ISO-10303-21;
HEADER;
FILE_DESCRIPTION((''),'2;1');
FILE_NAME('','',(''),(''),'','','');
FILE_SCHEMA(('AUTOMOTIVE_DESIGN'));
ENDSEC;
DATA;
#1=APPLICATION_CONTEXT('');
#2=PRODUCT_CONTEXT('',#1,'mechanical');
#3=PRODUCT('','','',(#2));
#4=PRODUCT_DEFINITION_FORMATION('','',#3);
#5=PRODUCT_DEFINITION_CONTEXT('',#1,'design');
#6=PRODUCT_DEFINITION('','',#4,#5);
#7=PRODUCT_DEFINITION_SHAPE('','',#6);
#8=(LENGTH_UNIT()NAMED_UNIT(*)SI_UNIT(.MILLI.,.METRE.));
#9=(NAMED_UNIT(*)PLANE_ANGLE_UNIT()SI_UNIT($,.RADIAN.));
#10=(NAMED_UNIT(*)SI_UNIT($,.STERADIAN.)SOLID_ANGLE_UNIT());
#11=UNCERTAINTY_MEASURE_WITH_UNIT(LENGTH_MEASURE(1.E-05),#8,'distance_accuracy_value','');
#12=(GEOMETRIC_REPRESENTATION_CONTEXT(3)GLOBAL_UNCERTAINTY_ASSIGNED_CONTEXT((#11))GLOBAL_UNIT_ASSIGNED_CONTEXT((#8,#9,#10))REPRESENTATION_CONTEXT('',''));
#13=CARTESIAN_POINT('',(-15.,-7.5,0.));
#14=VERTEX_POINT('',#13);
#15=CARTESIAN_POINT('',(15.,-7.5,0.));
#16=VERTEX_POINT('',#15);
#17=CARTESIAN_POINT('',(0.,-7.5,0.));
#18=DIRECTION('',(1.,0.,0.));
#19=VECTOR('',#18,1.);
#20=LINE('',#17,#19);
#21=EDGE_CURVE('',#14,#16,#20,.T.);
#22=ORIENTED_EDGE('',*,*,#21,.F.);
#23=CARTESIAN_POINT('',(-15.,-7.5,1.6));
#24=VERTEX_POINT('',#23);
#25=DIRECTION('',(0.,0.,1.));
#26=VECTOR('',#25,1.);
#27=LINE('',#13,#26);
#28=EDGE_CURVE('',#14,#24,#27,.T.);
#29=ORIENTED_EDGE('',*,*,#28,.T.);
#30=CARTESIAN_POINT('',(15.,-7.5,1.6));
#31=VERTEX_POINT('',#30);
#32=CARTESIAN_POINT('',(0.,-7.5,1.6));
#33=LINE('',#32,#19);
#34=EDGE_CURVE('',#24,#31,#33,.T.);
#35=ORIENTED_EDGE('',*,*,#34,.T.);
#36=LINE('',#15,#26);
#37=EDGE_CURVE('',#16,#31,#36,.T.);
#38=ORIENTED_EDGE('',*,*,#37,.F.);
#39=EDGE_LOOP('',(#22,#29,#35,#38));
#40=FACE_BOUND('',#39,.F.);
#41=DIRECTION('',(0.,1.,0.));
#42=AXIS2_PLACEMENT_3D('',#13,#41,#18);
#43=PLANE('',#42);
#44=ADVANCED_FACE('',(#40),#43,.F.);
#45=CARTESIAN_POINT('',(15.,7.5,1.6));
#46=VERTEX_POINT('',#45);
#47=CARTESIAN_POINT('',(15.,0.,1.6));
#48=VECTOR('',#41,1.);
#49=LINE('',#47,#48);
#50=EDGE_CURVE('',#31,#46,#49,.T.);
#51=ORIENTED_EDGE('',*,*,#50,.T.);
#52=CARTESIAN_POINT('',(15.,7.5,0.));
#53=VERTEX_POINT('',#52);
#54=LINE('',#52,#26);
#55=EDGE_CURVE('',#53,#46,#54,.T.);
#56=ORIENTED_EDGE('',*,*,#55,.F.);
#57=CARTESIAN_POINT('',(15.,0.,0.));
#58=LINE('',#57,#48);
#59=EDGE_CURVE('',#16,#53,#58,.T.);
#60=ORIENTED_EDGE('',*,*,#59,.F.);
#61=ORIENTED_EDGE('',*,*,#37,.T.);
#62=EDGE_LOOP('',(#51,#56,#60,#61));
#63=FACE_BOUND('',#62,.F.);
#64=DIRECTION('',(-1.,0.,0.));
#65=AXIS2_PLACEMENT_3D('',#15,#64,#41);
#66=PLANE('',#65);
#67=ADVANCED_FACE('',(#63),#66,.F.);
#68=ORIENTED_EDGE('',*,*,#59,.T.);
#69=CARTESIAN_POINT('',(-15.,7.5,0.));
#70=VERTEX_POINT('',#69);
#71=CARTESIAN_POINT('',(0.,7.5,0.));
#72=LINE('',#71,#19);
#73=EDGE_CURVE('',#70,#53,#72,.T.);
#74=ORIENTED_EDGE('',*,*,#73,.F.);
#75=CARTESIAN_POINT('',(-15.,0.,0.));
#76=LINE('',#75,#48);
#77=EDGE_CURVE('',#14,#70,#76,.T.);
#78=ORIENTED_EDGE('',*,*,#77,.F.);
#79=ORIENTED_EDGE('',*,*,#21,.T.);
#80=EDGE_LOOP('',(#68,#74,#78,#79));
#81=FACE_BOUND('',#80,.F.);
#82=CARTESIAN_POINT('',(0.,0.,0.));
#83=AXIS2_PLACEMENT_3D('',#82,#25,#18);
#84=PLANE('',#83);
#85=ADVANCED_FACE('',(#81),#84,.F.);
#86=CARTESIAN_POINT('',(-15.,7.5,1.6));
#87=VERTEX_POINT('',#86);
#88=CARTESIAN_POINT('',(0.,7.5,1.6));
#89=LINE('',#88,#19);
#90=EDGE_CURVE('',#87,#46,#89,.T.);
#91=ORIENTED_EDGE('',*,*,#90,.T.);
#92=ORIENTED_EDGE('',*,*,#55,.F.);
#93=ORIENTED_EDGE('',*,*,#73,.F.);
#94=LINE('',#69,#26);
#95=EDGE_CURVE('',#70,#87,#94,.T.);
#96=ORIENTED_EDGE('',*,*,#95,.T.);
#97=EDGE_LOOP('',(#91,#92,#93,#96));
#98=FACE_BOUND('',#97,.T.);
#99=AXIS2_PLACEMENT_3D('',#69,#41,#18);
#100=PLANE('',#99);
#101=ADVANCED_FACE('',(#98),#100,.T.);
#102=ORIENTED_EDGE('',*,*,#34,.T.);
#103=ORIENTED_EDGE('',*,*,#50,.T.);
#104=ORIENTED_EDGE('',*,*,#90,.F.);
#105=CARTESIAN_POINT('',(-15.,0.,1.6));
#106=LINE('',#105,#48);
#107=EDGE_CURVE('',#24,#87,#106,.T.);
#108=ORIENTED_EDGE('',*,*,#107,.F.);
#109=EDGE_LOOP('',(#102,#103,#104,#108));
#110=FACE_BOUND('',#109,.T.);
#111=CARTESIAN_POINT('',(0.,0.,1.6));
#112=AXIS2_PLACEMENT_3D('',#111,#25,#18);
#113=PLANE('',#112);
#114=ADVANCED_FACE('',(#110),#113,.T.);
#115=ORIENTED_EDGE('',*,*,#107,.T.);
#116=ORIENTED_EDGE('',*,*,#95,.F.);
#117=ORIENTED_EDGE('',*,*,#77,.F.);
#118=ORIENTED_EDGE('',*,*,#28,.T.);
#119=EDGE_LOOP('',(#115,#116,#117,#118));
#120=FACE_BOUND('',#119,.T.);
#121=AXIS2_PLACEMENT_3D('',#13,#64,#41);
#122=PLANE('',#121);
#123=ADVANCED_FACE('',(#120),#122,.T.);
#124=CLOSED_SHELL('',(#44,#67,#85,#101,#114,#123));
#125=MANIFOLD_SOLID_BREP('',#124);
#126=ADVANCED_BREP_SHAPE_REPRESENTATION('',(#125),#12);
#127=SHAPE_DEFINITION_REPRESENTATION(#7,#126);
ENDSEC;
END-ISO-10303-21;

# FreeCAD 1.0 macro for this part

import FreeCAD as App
import Part
import Sketcher

V = App.Vector
Q = App.Units.Quantity

doc = App.newDocument("Part")
body = doc.addObject("PartDesign::Body", "Body")

# Sketch on XY plane
sketch1 = body.newObject("Sketcher::SketchObject", "Sketch")
sketch1.AttachmentSupport = (doc.getObject("XY_Plane"), [""])
sketch1.MapMode = "FlatFace"
sketch1.addGeometry([
    Part.LineSegment(V(-15, 7.5, 0), V(-15, -7.5, 0)),
    Part.LineSegment(V(-15, -7.5, 0), V(15, -7.5, 0)),
    Part.LineSegment(V(15, -7.5, 0), V(15, 7.5, 0)),
    Part.LineSegment(V(15, 7.5, 0), V(-15, 7.5, 0)),
], False)
sketch1.addConstraint([
    Sketcher.Constraint("Coincident", 0, 2, 1, 1),
    Sketcher.Constraint("Coincident", 1, 2, 2, 1),
    Sketcher.Constraint("Coincident", 2, 2, 3, 1),
    Sketcher.Constraint("Coincident", 3, 2, 0, 1),
    Sketcher.Constraint("Vertical", 0),
    Sketcher.Constraint("Horizontal", 1),
    Sketcher.Constraint("Vertical", 2),
    Sketcher.Constraint("Horizontal", 3),
    Sketcher.Constraint("Symmetric", 0, 2, 2, 2, -1, 1),
    Sketcher.Constraint("DistanceX", 1, 1, 1, 2, Q("30 mm")),
    Sketcher.Constraint("DistanceY", 0, 2, 0, 1, Q("15 mm")),
])
pad1 = body.newObject("PartDesign::Pad", "Pad")
pad1.Profile = sketch1
pad1.Length = 1.6

doc.recompute()
